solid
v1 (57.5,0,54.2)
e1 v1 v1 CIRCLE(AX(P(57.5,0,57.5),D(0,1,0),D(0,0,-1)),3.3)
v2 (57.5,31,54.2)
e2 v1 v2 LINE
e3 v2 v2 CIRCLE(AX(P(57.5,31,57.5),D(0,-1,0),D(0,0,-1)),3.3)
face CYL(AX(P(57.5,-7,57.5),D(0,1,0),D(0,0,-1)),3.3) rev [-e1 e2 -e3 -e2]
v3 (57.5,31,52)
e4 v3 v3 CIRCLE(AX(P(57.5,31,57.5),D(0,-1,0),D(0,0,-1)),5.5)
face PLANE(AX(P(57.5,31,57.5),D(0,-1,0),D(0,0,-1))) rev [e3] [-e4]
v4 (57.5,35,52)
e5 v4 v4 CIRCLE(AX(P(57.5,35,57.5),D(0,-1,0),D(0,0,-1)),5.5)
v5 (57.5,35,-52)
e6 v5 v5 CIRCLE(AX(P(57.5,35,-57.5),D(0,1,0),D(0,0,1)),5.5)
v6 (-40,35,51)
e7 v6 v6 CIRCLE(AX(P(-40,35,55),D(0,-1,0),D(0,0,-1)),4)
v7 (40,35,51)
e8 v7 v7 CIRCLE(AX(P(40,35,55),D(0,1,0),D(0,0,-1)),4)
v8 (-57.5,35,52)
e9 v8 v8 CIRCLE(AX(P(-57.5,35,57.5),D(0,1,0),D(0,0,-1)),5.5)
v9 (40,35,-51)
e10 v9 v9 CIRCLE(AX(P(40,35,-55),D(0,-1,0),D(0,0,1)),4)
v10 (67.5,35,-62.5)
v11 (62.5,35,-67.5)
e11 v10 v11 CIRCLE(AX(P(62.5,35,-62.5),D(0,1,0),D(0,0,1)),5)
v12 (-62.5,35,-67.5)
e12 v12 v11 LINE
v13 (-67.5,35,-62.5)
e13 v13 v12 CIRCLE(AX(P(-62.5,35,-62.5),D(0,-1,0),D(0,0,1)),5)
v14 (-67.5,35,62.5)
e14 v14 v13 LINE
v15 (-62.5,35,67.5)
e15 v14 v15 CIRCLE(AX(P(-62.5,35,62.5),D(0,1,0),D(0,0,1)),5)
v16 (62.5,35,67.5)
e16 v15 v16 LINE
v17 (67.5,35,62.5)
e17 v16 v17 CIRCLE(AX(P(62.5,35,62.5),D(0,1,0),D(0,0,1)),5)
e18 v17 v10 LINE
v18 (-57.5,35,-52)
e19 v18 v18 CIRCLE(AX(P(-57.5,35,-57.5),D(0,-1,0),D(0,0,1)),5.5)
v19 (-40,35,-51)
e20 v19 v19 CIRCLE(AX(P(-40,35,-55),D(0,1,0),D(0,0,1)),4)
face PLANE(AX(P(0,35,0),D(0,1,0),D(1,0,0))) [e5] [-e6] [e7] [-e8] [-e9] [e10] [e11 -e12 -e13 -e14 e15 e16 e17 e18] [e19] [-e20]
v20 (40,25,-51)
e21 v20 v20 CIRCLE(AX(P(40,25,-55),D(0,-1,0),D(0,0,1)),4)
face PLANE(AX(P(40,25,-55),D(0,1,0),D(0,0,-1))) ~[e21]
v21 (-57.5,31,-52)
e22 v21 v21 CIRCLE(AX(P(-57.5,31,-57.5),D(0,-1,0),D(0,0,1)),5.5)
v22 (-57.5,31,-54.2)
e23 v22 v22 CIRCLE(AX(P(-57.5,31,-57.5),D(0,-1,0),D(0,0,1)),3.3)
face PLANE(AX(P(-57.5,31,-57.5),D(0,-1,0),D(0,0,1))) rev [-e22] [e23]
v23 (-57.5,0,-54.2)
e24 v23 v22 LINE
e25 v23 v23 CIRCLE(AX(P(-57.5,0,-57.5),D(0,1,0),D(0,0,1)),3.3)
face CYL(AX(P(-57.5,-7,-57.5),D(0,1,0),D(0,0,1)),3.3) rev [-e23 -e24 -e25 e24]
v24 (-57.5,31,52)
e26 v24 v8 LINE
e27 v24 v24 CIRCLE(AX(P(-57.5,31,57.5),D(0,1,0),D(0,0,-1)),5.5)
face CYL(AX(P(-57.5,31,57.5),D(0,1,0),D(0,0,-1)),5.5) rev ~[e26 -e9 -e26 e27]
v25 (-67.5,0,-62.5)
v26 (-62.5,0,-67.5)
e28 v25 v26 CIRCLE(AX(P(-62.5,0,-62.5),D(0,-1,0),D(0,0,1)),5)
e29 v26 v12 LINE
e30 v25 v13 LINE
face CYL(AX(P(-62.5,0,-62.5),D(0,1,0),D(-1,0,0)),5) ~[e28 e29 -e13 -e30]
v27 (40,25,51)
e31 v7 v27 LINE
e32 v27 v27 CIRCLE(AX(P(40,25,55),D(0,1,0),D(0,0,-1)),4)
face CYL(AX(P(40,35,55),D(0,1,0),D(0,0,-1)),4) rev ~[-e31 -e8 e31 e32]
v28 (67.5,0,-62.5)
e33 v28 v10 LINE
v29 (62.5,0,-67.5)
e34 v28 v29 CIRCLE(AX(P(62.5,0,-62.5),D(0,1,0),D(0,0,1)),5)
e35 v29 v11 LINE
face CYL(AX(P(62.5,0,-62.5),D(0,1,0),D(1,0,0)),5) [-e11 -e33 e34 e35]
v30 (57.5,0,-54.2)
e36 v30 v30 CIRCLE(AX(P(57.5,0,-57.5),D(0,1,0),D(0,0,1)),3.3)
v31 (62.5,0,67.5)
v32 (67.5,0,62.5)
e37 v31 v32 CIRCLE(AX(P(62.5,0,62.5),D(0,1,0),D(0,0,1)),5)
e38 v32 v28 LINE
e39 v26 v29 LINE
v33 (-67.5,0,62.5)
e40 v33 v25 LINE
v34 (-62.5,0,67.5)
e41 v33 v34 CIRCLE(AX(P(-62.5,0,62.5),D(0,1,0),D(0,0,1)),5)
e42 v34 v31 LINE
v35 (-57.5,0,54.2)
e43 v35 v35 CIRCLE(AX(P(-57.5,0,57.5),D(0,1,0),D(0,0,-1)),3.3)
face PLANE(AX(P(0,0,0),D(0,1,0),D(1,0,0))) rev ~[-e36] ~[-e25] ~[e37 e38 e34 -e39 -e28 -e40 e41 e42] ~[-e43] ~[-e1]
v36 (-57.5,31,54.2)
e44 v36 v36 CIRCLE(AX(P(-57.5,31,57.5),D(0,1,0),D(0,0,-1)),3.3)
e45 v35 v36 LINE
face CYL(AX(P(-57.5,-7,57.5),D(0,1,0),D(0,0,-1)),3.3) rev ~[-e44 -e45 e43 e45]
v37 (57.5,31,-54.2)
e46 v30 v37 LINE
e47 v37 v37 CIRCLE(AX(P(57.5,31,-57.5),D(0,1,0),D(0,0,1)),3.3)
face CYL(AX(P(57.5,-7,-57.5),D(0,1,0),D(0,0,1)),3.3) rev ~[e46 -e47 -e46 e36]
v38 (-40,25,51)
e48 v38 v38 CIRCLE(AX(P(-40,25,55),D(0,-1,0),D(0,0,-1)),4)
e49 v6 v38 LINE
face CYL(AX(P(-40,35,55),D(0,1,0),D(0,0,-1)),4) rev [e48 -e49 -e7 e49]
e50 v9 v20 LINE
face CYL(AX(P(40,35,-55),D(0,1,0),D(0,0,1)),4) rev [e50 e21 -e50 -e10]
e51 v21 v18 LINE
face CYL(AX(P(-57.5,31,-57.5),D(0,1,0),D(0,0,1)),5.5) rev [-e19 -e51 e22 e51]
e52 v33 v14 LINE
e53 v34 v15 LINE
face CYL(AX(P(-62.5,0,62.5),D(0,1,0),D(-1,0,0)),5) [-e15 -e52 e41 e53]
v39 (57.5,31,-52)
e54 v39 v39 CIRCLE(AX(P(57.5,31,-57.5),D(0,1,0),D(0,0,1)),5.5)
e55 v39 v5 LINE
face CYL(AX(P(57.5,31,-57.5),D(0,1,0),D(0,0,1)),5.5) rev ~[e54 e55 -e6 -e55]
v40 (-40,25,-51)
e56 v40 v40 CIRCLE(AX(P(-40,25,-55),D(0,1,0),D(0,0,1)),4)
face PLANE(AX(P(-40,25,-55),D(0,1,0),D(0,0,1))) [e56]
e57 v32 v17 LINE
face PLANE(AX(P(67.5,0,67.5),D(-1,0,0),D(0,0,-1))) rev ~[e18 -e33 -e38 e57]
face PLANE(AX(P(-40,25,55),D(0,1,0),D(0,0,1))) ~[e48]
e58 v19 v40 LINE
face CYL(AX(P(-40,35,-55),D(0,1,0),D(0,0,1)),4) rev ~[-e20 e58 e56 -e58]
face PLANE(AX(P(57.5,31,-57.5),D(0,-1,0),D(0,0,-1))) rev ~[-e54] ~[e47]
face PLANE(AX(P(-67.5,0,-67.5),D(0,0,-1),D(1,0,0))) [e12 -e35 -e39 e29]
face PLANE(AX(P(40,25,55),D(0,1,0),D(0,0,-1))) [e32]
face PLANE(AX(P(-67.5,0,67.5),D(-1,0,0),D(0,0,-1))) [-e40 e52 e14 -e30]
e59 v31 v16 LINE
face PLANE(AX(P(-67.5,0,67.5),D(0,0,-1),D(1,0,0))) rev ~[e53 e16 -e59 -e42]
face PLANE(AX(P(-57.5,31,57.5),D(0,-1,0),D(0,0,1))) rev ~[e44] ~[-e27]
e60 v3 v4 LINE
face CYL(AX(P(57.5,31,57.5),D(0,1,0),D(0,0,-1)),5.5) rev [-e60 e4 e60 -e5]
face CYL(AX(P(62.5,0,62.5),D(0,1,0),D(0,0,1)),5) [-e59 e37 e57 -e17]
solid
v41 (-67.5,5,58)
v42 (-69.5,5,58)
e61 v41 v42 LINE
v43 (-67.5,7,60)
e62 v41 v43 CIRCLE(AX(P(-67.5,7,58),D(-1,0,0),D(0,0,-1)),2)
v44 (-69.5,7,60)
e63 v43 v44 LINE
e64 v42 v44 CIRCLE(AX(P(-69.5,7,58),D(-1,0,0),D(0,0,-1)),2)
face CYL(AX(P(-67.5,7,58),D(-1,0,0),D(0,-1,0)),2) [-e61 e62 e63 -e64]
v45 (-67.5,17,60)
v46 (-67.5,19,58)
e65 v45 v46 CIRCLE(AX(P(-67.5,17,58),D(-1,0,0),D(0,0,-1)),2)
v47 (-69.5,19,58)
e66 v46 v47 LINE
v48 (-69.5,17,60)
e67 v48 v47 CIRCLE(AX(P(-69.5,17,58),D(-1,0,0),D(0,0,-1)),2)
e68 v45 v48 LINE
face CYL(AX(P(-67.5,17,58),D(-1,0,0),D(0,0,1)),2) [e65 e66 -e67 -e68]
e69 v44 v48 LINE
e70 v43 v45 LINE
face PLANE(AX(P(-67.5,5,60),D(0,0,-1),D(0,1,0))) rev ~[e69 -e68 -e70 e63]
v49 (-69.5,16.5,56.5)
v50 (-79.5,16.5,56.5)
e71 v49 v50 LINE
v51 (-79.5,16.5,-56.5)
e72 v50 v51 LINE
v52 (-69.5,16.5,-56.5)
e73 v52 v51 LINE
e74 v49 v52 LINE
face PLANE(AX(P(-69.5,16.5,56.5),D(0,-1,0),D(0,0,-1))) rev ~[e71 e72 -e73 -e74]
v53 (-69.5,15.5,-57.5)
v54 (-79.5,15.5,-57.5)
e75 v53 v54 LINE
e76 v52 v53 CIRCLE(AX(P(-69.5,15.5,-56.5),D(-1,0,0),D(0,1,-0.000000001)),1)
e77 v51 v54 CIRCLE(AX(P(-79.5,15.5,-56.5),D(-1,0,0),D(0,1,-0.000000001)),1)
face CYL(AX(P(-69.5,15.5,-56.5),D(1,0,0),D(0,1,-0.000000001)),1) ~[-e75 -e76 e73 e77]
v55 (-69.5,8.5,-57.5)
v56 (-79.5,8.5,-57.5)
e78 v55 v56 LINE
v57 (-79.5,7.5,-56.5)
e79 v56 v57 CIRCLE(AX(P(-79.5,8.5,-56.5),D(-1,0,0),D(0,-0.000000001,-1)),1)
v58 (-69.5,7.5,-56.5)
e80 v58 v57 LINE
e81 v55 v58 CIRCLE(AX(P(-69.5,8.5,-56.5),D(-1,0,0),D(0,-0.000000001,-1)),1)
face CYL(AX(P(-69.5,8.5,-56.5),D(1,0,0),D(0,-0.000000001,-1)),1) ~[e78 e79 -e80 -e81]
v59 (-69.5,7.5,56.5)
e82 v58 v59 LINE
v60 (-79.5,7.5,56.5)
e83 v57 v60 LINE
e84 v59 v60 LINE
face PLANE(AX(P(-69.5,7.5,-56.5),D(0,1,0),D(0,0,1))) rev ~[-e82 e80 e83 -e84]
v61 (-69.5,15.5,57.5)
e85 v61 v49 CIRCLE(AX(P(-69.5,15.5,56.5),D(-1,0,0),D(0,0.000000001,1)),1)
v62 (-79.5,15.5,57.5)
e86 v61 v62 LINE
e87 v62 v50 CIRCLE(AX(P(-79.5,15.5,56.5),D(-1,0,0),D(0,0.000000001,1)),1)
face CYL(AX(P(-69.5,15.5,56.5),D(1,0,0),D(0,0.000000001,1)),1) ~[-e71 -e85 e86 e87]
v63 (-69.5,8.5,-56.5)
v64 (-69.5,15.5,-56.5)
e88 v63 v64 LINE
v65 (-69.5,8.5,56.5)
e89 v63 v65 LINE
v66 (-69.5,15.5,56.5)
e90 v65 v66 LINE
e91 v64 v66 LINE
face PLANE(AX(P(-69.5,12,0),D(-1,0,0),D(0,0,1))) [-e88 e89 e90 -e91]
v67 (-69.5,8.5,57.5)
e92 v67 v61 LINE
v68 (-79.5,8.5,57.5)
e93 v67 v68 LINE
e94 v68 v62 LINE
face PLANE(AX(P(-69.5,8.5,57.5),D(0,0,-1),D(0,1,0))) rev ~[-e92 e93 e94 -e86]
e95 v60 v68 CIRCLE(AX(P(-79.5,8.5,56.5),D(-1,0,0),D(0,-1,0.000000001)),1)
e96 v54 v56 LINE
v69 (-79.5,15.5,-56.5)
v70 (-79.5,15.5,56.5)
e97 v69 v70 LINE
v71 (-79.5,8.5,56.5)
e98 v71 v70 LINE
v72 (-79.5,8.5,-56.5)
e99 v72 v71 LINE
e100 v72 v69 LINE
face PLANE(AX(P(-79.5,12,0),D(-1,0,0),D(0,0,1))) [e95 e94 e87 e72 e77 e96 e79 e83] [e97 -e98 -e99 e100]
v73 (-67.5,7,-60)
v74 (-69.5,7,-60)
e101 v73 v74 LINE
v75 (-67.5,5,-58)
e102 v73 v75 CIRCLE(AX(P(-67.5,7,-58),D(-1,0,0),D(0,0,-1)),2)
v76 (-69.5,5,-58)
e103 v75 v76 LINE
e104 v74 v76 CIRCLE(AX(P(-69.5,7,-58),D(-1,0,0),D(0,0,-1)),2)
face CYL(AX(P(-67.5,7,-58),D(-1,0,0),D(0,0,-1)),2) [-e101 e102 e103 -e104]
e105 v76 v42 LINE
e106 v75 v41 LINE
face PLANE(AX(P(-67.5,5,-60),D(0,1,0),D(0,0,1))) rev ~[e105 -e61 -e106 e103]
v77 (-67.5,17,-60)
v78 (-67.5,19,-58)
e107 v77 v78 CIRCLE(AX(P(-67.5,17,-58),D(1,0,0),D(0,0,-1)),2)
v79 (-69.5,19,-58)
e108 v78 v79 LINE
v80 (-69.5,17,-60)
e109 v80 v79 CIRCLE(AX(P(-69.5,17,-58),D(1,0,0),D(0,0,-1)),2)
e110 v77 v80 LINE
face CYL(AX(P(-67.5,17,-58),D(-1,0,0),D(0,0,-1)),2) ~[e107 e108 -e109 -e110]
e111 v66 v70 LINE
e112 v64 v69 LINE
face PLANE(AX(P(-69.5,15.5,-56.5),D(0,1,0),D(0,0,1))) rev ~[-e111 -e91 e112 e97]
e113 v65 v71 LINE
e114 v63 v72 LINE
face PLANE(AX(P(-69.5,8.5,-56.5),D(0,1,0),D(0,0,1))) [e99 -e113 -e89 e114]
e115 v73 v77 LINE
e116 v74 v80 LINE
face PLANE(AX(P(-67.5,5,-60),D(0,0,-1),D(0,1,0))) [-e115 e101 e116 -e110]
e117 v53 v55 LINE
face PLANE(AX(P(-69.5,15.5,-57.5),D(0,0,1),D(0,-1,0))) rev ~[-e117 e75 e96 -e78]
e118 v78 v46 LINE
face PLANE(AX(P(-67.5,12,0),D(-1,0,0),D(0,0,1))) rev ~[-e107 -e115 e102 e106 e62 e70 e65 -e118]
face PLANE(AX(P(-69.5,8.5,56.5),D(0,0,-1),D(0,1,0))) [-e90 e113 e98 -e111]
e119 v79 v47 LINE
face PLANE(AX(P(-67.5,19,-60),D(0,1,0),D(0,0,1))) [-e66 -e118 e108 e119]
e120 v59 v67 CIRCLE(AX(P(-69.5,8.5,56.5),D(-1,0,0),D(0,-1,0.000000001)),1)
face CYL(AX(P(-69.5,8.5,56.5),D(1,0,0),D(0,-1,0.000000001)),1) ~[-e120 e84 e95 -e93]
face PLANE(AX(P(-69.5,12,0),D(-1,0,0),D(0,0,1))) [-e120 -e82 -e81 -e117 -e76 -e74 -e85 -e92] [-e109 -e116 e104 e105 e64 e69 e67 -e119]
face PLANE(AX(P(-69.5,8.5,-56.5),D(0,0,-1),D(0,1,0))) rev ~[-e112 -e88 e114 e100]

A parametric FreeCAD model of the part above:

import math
import FreeCAD as App
import Part
import Sketcher
Q = App.Units.Quantity


def edges_at(feature, points):
    """Names of the edges that pass closest to the given points."""
    edges = feature.Shape.Edges
    near = lambda p: min(range(len(edges)), key=lambda i: edges[i].distToShape(Part.Vertex(*p))[0])
    return sorted({f"Edge{near(p) + 1}" for p in points})


def add_polygon(sketch, points):
    """Adds a closed chain of lines whose ends are joined by coincident constraints."""
    first, n = sketch.GeometryCount, len(points)
    for a, b in zip(points, points[1:] + points[:1]):
        sketch.addGeometry(Part.LineSegment(App.Vector(*a, 0), App.Vector(*b, 0)), False)
    for i in range(n):
        sketch.addConstraint(Sketcher.Constraint("Coincident", first + i, 2, first + (i + 1) % n, 1))

doc = App.newDocument("Part")
body = doc.addObject("PartDesign::Body", "Body")

# Sketch on XZ plane
sketch1 = body.newObject("Sketcher::SketchObject", "Sketch")
sketch1.AttachmentSupport = (doc.getObject("XZ_Plane"), [""])
sketch1.MapMode = "FlatFace"
add_polygon(sketch1, [(-68, -68), (-68, 68), (68, 68), (68, -68)])  # lines 0-3
sketch1.addConstraint(Sketcher.Constraint("Vertical", 0))
sketch1.addConstraint(Sketcher.Constraint("Horizontal", 1))
sketch1.addConstraint(Sketcher.Constraint("Vertical", 2))
sketch1.addConstraint(Sketcher.Constraint("Horizontal", 3))
sketch1.addConstraint(Sketcher.Constraint("Symmetric", 0, 2, 2, 2, -1, 1))
sketch1.addConstraint(Sketcher.Constraint("Equal", 3, 0))
sketch1.addConstraint(Sketcher.Constraint("DistanceX", 1, 1, 1, 2, Q("135 mm")))
pad1 = body.newObject("PartDesign::Pad", "Pad")
pad1.Profile = sketch1
pad1.Length = 35
pad1.Reversed = True
doc.recompute()

fillet = body.newObject("PartDesign::Fillet", "Fillet")
fillet.Base = (pad1, edges_at(pad1, [
    (-67.5, 17.5, -67.5),
    (67.5, 17.5, -67.5),
    (67.5, 17.5, 67.5),
    (-67.5, 17.5, 67.5),
]))
fillet.Radius = 5

# Sketch on YZ plane
sketch2 = body.newObject("Sketcher::SketchObject", "Sketch001")
sketch2.AttachmentSupport = (doc.getObject("YZ_Plane"), [""])
sketch2.MapMode = "FlatFace"
sketch2.AttachmentOffset = App.Placement(App.Vector(0, 0, -57.5), App.Rotation())
add_polygon(sketch2, [(-9, -57.5), (35, -57.5), (35, -52), (31, -52), (31, -54.2), (-7, -54.2)])  # lines 0-5
sketch2.addGeometry(Part.LineSegment(App.Vector(35, -57.5, 0), App.Vector(-9, -57.5, 0)), True)  # axis
sketch2.addConstraint(Sketcher.Constraint("Horizontal", 0))
sketch2.addConstraint(Sketcher.Constraint("Vertical", 1))
sketch2.addConstraint(Sketcher.Constraint("Horizontal", 2))
sketch2.addConstraint(Sketcher.Constraint("Vertical", 3))
sketch2.addConstraint(Sketcher.Constraint("Horizontal", 4))
sketch2.addConstraint(Sketcher.Constraint("Horizontal", 6))
sketch2.addConstraint(Sketcher.Constraint("Coincident", 6, 1, 0, 2))
sketch2.addConstraint(Sketcher.Constraint("Equal", 0, 6))
sketch2.addConstraint(Sketcher.Constraint("DistanceX", 2, 2, 2, 1, Q("4 mm")))
sketch2.addConstraint(Sketcher.Constraint("DistanceX", 4, 2, 4, 1, Q("38 mm")))
sketch2.addConstraint(Sketcher.Constraint("Angle", 5, Q("-121 deg")))
sketch2.addConstraint(Sketcher.Constraint("DistanceY", 1, 1, 1, 2, Q("5.5 mm")))
sketch2.addConstraint(Sketcher.Constraint("DistanceY", 3, 2, 3, 1, Q("2.2 mm")))
sketch2.addConstraint(Sketcher.Constraint("DistanceX", -1, 1, 0, 2, Q("35 mm")))
sketch2.addConstraint(Sketcher.Constraint("DistanceY", 1, 2, -1, 1, Q("52 mm")))
groove = body.newObject("PartDesign::Groove", "Groove")
groove.Profile = sketch2
groove.ReferenceAxis = (sketch2, ["Axis0"])
groove.Angle = 360

# Sketch on XZ plane
sketch3 = body.newObject("Sketcher::SketchObject", "Sketch002")
sketch3.AttachmentSupport = (doc.getObject("XZ_Plane"), [""])
sketch3.MapMode = "FlatFace"
sketch3.AttachmentOffset = App.Placement(App.Vector(0, 0, -35), App.Rotation())
sketch3.addGeometry(Part.Circle(App.Vector(-40, -55, 0), App.Vector(0, 0, 1), 4), False)
sketch3.addConstraint(Sketcher.Constraint("Diameter", 0, Q("8 mm")))
sketch3.addConstraint(Sketcher.Constraint("DistanceX", 0, 3, -1, 1, Q("40 mm")))
sketch3.addConstraint(Sketcher.Constraint("DistanceY", 0, 3, -1, 1, Q("55 mm")))
pocket1 = body.newObject("PartDesign::Pocket", "Pocket")
pocket1.Profile = sketch3
pocket1.Length = 10
pocket1.Reversed = True
doc.recompute()

mirrored = body.newObject("PartDesign::Mirrored", "Mirrored")
mirrored.Originals = [groove, pocket1]
mirrored.MirrorPlane = (doc.getObject("XY_Plane"), [""])
body.Tip = mirrored
doc.recompute()

mirrored2 = body.newObject("PartDesign::Mirrored", "Mirrored001")
mirrored2.Originals = [groove, pocket1]
mirrored2.MirrorPlane = (doc.getObject("YZ_Plane"), [""])
body.Tip = mirrored2

# Sketch on YZ plane
sketch4 = body.newObject("Sketcher::SketchObject", "Sketch003")
sketch4.AttachmentSupport = (doc.getObject("YZ_Plane"), [""])
sketch4.MapMode = "FlatFace"
sketch4.AttachmentOffset = App.Placement(App.Vector(0, 0, 57.5), App.Rotation())
add_polygon(sketch4, [(-9, 57.5), (35, 57.5), (35, 52), (31, 52), (31, 54.2), (-7, 54.2)])  # lines 0-5
sketch4.addGeometry(Part.LineSegment(App.Vector(35, 57.5, 0), App.Vector(-9, 57.5, 0)), True)  # axis
sketch4.addConstraint(Sketcher.Constraint("Horizontal", 0))
sketch4.addConstraint(Sketcher.Constraint("Vertical", 1))
sketch4.addConstraint(Sketcher.Constraint("Horizontal", 2))
sketch4.addConstraint(Sketcher.Constraint("Vertical", 3))
sketch4.addConstraint(Sketcher.Constraint("Horizontal", 4))
sketch4.addConstraint(Sketcher.Constraint("Horizontal", 6))
sketch4.addConstraint(Sketcher.Constraint("Coincident", 6, 1, 0, 2))
sketch4.addConstraint(Sketcher.Constraint("Equal", 0, 6))
sketch4.addConstraint(Sketcher.Constraint("DistanceX", 2, 2, 2, 1, Q("4 mm")))
sketch4.addConstraint(Sketcher.Constraint("DistanceX", 4, 2, 4, 1, Q("38 mm")))
sketch4.addConstraint(Sketcher.Constraint("Angle", 5, Q("121 deg")))
sketch4.addConstraint(Sketcher.Constraint("DistanceY", 1, 2, 1, 1, Q("5.5 mm")))
sketch4.addConstraint(Sketcher.Constraint("DistanceY", 3, 1, 3, 2, Q("2.2 mm")))
sketch4.addConstraint(Sketcher.Constraint("DistanceX", -1, 1, 0, 2, Q("35 mm")))
sketch4.addConstraint(Sketcher.Constraint("DistanceY", -1, 1, 1, 2, Q("52 mm")))
groove2 = body.newObject("PartDesign::Groove", "Groove001")
groove2.Profile = sketch4
groove2.ReferenceAxis = (sketch4, ["Axis0"])
groove2.Angle = 360

# Sketch on XZ plane
sketch5 = body.newObject("Sketcher::SketchObject", "Sketch004")
sketch5.AttachmentSupport = (doc.getObject("XZ_Plane"), [""])
sketch5.MapMode = "FlatFace"
sketch5.AttachmentOffset = App.Placement(App.Vector(0, 0, -35), App.Rotation())
sketch5.addGeometry(Part.Circle(App.Vector(40, 55, 0), App.Vector(0, 0, 1), 4), False)
sketch5.addConstraint(Sketcher.Constraint("Diameter", 0, Q("8 mm")))
sketch5.addConstraint(Sketcher.Constraint("DistanceX", -1, 1, 0, 3, Q("40 mm")))
sketch5.addConstraint(Sketcher.Constraint("DistanceY", -1, 1, 0, 3, Q("55 mm")))
pocket2 = body.newObject("PartDesign::Pocket", "Pocket001")
pocket2.Profile = sketch5
pocket2.Length = 10
pocket2.Reversed = True
body2 = doc.addObject("PartDesign::Body", "Body001")

# Sketch on YZ plane
sketch6 = body2.newObject("Sketcher::SketchObject", "Sketch005")
sketch6.AttachmentSupport = (doc.getObject("YZ_Plane001"), [""])
sketch6.MapMode = "FlatFace"
sketch6.AttachmentOffset = App.Placement(App.Vector(0, 0, -67.5), App.Rotation())
add_polygon(sketch6, [(19, -60), (5, -60), (5, 60), (19, 60)])  # lines 0-3
sketch6.addConstraint(Sketcher.Constraint("Horizontal", 0))
sketch6.addConstraint(Sketcher.Constraint("Vertical", 1))
sketch6.addConstraint(Sketcher.Constraint("Horizontal", 2))
sketch6.addConstraint(Sketcher.Constraint("Vertical", 3))
sketch6.addConstraint(Sketcher.Constraint("DistanceX", 0, 2, 0, 1, Q("14 mm")))
sketch6.addConstraint(Sketcher.Constraint("DistanceY", 1, 1, 1, 2, Q("120 mm")))
sketch6.addConstraint(Sketcher.Constraint("DistanceX", -1, 1, 0, 2, Q("5 mm")))
sketch6.addConstraint(Sketcher.Constraint("DistanceY", 0, 2, -1, 1, Q("60 mm")))
pad2 = body2.newObject("PartDesign::Pad", "Pad001")
pad2.Profile = sketch6
pad2.Length = 2
pad2.Reversed = True
doc.recompute()

fillet2 = body2.newObject("PartDesign::Fillet", "Fillet001")
fillet2.Base = (pad2, edges_at(pad2, [
    (-68.5, 19, -60),
    (-68.5, 19, 60),
    (-68.5, 5, 60),
    (-68.5, 5, -60),
]))
fillet2.Radius = 2

# Sketch on YZ plane
sketch7 = body2.newObject("Sketcher::SketchObject", "Sketch006")
sketch7.AttachmentSupport = (doc.getObject("YZ_Plane001"), [""])
sketch7.MapMode = "FlatFace"
sketch7.AttachmentOffset = App.Placement(App.Vector(0, 0, -69.5), App.Rotation())
sketch7.addGeometry(Part.LineSegment(App.Vector(16.5, 56.5, 0), App.Vector(16.5, -56.5, 0)), False)  # 0
sketch7.addGeometry(Part.ArcOfCircle(Part.Circle(App.Vector(15.5, -56.5, 0), App.Vector(0, 0, 1), 1), math.radians(-90), math.radians(0)), False)  # 1
sketch7.addGeometry(Part.LineSegment(App.Vector(15.5, -57.5, 0), App.Vector(8.5, -57.5, 0)), False)  # 2
sketch7.addGeometry(Part.ArcOfCircle(Part.Circle(App.Vector(8.5, -56.5, 0), App.Vector(0, 0, 1), 1), math.radians(-180), math.radians(-90)), False)  # 3
sketch7.addGeometry(Part.LineSegment(App.Vector(7.5, -56.5, 0), App.Vector(7.5, 56.5, 0)), False)  # 4
sketch7.addGeometry(Part.ArcOfCircle(Part.Circle(App.Vector(8.5, 56.5, 0), App.Vector(0, 0, 1), 1), math.radians(90), math.radians(180)), False)  # 5
sketch7.addGeometry(Part.LineSegment(App.Vector(8.5, 57.5, 0), App.Vector(15.5, 57.5, 0)), False)  # 6
sketch7.addGeometry(Part.ArcOfCircle(Part.Circle(App.Vector(15.5, 56.5, 0), App.Vector(0, 0, 1), 1), math.radians(0), math.radians(90)), False)  # 7
add_polygon(sketch7, [(8.5, 56.5), (8.5, -56.5), (15.5, -56.5), (15.5, 56.5)])  # lines 8-11
sketch7.addConstraint(Sketcher.Constraint("Tangent", 0, 2, 1, 2))
sketch7.addConstraint(Sketcher.Constraint("Tangent", 1, 1, 2, 1))
sketch7.addConstraint(Sketcher.Constraint("Tangent", 2, 2, 3, 2))
sketch7.addConstraint(Sketcher.Constraint("Tangent", 3, 1, 4, 1))
sketch7.addConstraint(Sketcher.Constraint("Tangent", 4, 2, 5, 2))
sketch7.addConstraint(Sketcher.Constraint("Tangent", 5, 1, 6, 1))
sketch7.addConstraint(Sketcher.Constraint("Tangent", 6, 2, 7, 2))
sketch7.addConstraint(Sketcher.Constraint("Tangent", 7, 1, 0, 1))
sketch7.addConstraint(Sketcher.Constraint("Vertical", 0))
sketch7.addConstraint(Sketcher.Constraint("Horizontal", 2))
sketch7.addConstraint(Sketcher.Constraint("Vertical", 4))
sketch7.addConstraint(Sketcher.Constraint("Horizontal", 6))
sketch7.addConstraint(Sketcher.Constraint("Vertical", 8))
sketch7.addConstraint(Sketcher.Constraint("Horizontal", 9))
sketch7.addConstraint(Sketcher.Constraint("Vertical", 10))
sketch7.addConstraint(Sketcher.Constraint("Horizontal", 11))
sketch7.addConstraint(Sketcher.Constraint("Coincident", 8, 2, 3, 3))
sketch7.addConstraint(Sketcher.Constraint("Coincident", 9, 2, 1, 3))
sketch7.addConstraint(Sketcher.Constraint("Coincident", 10, 2, 7, 3))
sketch7.addConstraint(Sketcher.Constraint("Equal", 3, 5))
sketch7.addConstraint(Sketcher.Constraint("Radius", 1, Q("1 mm")))
sketch7.addConstraint(Sketcher.Constraint("DistanceX", 2, 2, 2, 1, Q("7 mm")))
sketch7.addConstraint(Sketcher.Constraint("DistanceY", 0, 2, 0, 1, Q("113 mm")))
sketch7.addConstraint(Sketcher.Constraint("DistanceX", -1, 1, 1, 3, Q("15.5 mm")))
sketch7.addConstraint(Sketcher.Constraint("DistanceY", 1, 3, -1, 1, Q("56.5 mm")))
pad3 = body2.newObject("PartDesign::Pad", "Pad002")
pad3.Profile = sketch7
pad3.Length = 10
pad3.Reversed = True

doc.recompute()
